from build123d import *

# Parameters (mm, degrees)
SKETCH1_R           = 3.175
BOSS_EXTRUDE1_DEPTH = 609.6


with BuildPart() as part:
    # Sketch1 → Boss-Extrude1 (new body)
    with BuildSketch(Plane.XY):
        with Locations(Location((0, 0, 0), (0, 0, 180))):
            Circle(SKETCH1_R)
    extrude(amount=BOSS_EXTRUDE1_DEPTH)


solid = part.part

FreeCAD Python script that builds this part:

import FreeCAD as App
import Part
import Sketcher

V = App.Vector
Q = App.Units.Quantity

doc = App.newDocument("Part")
params = doc.addObject("Spreadsheet::Sheet", "Params")
for row, (alias, value) in enumerate([
    ("sketch1_diameter", "0.25 in"),
    ("pad1_length", "24 in"),
], start=1):
    params.set(f"A{row}", alias)
    params.set(f"B{row}", "=" + value)
    params.setAlias(f"B{row}", alias)

body = doc.addObject("PartDesign::Body", "Body")

# Sketch on XY plane
sketch1 = body.newObject("Sketcher::SketchObject", "Sketch")
sketch1.AttachmentSupport = (doc.getObject("XY_Plane"), [""])
sketch1.MapMode = "FlatFace"
sketch1.addGeometry(Part.Circle(V(0, 0, 0), V(0, 0, 1), 3.175), False)
sketch1.addConstraint([
    Sketcher.Constraint("Coincident", 0, 3, -1, 1),
    Sketcher.Constraint("Diameter", 0, Q("0.25 in")),
])
sketch1.setExpression("Constraints[1]", "Params.sketch1_diameter")
pad1 = body.newObject("PartDesign::Pad", "Pad")
pad1.Profile = sketch1
pad1.setExpression("Length", "Params.pad1_length")

doc.recompute()
